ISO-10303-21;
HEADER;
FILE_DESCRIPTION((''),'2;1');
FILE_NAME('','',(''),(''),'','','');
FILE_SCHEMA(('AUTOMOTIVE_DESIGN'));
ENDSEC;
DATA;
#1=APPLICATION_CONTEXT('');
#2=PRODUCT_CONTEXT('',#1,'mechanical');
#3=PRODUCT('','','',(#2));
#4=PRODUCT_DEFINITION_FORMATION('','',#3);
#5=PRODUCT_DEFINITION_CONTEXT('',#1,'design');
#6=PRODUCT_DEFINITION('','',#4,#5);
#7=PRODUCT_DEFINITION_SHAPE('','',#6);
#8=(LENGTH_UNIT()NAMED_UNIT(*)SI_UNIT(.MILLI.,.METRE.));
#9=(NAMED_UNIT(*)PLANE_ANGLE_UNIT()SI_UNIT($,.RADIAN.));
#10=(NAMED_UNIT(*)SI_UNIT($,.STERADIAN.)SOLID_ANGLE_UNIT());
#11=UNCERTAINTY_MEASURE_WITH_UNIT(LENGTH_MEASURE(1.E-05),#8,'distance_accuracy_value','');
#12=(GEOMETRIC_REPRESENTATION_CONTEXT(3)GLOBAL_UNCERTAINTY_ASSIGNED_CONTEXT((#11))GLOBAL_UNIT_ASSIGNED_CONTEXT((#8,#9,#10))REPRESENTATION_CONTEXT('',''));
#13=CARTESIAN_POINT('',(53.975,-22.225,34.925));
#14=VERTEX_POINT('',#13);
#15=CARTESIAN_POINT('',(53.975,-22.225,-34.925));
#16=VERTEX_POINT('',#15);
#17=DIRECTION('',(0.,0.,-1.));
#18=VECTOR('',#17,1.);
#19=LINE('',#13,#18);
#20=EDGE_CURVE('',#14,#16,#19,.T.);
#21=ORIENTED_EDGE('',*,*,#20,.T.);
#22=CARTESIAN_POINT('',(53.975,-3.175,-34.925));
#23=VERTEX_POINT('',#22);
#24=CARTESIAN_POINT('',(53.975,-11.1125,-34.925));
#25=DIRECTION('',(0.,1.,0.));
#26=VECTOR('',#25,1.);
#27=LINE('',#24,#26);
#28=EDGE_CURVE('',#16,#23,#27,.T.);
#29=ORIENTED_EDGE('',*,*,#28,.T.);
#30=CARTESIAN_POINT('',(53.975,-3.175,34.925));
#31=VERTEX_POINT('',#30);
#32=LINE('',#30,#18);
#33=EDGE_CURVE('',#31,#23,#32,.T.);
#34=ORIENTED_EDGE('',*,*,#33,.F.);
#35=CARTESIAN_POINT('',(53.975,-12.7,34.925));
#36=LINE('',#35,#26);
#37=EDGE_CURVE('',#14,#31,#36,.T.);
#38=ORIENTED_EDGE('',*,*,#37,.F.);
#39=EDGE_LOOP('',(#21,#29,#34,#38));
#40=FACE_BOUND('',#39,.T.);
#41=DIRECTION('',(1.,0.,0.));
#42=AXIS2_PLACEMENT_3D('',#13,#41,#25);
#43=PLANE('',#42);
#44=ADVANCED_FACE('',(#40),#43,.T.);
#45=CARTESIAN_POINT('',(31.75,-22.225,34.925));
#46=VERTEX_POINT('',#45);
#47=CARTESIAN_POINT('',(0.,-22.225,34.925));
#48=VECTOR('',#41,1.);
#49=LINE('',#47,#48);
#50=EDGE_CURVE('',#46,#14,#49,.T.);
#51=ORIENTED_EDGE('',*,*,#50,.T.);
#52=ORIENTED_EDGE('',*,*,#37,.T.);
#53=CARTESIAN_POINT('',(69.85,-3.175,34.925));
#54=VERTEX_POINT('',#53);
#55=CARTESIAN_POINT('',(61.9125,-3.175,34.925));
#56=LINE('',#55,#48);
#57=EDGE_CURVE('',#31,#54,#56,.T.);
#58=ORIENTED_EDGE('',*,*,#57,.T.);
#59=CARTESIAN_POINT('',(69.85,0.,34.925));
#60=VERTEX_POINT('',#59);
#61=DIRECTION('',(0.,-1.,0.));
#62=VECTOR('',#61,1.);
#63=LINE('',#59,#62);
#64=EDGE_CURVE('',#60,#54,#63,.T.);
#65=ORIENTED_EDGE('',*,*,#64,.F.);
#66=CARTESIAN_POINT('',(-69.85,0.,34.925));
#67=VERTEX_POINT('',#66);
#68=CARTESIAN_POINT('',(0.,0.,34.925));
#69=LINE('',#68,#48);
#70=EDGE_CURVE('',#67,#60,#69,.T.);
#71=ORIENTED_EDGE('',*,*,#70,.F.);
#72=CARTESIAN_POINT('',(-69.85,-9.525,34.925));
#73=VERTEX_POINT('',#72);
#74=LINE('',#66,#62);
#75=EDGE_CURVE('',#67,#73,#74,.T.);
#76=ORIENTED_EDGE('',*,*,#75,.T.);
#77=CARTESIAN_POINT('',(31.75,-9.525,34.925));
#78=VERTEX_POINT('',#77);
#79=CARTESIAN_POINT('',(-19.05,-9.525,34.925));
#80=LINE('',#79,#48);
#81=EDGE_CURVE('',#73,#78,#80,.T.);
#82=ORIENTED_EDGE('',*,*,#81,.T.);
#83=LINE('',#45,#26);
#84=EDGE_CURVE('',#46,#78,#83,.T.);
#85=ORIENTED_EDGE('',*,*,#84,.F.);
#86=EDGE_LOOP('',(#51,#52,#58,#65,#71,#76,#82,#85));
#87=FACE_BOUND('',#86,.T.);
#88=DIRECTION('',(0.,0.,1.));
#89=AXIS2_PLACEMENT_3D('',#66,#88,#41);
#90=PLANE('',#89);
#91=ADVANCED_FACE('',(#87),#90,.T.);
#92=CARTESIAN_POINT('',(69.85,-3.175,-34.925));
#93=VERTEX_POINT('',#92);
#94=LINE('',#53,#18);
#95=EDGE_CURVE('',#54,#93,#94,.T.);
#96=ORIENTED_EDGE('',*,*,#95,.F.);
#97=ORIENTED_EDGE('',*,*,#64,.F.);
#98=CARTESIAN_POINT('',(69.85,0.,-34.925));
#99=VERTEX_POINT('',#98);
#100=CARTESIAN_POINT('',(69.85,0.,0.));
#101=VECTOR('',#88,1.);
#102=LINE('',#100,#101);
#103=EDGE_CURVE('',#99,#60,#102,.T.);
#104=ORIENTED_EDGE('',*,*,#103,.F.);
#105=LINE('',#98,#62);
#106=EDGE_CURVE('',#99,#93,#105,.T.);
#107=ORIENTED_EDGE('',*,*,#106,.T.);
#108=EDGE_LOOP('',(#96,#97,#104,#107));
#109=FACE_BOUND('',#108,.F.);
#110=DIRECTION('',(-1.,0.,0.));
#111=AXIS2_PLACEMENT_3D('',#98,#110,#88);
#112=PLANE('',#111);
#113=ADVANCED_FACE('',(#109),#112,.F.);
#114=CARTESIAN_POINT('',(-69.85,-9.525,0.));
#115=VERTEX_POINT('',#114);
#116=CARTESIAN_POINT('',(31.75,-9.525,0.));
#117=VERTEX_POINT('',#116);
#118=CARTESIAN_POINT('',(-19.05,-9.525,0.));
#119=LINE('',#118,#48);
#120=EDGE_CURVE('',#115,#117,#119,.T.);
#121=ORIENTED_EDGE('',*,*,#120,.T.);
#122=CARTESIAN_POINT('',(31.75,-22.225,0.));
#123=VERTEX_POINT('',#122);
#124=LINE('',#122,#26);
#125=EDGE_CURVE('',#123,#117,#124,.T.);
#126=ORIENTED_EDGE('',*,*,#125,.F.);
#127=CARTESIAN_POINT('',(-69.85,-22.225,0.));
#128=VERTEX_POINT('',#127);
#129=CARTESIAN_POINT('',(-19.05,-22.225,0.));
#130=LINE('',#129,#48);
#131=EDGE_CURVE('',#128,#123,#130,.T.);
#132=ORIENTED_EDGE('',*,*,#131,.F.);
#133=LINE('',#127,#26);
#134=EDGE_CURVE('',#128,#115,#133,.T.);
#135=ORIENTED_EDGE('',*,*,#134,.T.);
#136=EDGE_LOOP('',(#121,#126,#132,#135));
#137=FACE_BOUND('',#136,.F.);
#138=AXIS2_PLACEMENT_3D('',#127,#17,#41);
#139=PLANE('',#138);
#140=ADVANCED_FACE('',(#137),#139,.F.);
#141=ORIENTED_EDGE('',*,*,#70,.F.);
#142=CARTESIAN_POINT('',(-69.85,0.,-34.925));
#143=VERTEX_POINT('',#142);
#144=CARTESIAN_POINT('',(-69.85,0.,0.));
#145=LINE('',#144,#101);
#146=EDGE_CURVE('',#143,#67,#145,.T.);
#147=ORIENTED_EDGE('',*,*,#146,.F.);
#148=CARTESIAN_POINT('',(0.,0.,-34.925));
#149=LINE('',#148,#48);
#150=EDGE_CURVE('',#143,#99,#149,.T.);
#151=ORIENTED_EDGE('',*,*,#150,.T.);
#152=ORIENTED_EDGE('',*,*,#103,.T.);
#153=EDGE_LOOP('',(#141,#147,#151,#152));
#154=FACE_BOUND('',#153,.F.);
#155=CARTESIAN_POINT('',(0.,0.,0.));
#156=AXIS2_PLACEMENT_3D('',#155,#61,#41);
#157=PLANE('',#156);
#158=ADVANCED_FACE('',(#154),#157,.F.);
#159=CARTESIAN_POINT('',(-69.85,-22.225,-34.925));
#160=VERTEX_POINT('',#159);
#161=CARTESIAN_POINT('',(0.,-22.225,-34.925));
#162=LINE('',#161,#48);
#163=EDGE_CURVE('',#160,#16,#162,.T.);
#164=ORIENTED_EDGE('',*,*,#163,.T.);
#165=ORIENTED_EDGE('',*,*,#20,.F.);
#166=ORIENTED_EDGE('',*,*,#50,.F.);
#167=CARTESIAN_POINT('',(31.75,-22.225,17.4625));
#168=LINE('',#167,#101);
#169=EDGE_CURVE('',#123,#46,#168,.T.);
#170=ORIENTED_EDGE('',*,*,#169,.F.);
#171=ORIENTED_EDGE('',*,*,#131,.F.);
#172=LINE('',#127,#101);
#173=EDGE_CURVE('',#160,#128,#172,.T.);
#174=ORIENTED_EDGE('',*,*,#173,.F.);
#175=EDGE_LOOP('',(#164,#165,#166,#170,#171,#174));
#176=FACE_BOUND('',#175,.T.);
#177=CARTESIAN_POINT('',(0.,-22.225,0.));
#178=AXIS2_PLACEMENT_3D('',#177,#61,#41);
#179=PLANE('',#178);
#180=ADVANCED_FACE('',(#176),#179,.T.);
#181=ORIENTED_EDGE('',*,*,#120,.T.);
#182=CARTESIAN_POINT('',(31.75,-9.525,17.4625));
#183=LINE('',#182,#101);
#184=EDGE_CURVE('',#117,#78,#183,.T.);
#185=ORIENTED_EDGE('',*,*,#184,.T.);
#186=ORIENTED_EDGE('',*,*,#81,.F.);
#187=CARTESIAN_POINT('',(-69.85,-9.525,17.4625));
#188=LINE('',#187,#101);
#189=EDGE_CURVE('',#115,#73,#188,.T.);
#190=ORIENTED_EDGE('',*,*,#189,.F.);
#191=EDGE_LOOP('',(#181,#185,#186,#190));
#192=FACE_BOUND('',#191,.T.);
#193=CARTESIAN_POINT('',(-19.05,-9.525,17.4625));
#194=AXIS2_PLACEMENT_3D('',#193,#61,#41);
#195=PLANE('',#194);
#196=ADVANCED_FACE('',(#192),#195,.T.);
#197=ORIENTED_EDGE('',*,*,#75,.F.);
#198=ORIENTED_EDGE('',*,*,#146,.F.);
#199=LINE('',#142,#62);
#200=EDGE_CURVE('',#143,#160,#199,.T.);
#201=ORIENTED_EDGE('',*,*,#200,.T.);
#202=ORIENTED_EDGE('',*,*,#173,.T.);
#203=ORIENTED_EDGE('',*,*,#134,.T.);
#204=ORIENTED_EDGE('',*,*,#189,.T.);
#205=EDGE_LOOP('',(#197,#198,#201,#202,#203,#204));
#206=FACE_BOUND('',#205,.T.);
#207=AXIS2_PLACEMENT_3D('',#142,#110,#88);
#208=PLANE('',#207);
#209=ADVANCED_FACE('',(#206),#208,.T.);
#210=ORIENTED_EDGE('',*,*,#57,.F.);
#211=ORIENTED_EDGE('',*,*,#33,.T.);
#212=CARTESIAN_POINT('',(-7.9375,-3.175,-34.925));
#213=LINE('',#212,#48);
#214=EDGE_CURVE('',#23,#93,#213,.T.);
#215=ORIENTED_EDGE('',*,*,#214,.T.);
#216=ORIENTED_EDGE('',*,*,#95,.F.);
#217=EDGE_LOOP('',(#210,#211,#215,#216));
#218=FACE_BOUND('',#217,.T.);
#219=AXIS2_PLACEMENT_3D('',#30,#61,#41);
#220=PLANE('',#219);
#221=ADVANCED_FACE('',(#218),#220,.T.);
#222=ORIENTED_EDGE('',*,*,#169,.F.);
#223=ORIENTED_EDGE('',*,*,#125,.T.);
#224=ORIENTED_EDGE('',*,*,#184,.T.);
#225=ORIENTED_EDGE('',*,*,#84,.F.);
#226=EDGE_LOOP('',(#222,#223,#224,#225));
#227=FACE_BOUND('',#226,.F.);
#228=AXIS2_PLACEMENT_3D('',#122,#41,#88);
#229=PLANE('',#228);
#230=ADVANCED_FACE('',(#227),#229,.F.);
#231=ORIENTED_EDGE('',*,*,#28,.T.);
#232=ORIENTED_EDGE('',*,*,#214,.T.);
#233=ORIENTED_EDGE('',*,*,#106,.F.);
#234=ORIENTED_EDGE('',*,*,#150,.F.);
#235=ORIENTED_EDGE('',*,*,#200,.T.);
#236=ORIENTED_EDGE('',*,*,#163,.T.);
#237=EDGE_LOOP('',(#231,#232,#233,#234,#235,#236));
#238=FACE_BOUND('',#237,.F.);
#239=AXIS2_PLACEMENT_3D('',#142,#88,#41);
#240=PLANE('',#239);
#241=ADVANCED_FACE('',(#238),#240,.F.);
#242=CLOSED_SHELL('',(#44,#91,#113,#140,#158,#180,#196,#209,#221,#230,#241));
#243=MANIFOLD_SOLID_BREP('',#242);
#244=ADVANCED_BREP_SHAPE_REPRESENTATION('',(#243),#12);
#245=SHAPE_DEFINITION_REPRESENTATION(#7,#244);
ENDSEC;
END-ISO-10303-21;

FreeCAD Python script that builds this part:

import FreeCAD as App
import Part
import Sketcher
from FreeCAD import Vector
Q = App.Units.Quantity


def add_polygon(sketch, points):
    """Adds a closed chain of lines whose ends are joined by coincident constraints."""
    first, n = sketch.GeometryCount, len(points)
    for a, b in zip(points, points[1:] + points[:1]):
        sketch.addGeometry(Part.LineSegment(App.Vector(*a, 0), App.Vector(*b, 0)), False)
    for i in range(n):
        sketch.addConstraint(Sketcher.Constraint("Coincident", first + i, 2, first + (i + 1) % n, 1))

doc = App.newDocument("Part")
body = doc.addObject("PartDesign::Body", "Body")

sketch1 = body.newObject("Sketcher::SketchObject", "Sketch")
sketch1.AttachmentSupport = (doc.getObject("XZ_Plane"), [""])
sketch1.MapMode = "FlatFace"
add_polygon(sketch1, [(-69.85, 34.925), (-69.85, -34.925), (69.85, -34.925), (69.85, 34.925)])
sketch1.addConstraint([
    Sketcher.Constraint("Vertical", 0),
    Sketcher.Constraint("Horizontal", 1),
    Sketcher.Constraint("Vertical", 2),
    Sketcher.Constraint("Horizontal", 3),
    Sketcher.Constraint("Symmetric", 0, 2, 2, 2, -1, 1),
    Sketcher.Constraint("DistanceX", 1, 1, 1, 2, Q("5.5 in")),
    Sketcher.Constraint("DistanceY", 0, 2, 0, 1, Q("2.75 in")),
])
pad1 = body.newObject("PartDesign::Pad", "Pad")
pad1.Profile = sketch1
pad1.Length = Q("0.875 in")

sketch2 = body.newObject("Sketcher::SketchObject", "Sketch001")
sketch2.AttachmentSupport = (doc.getObject("XZ_Plane"), [""])
sketch2.MapMode = "FlatFace"
sketch2.AttachmentOffset = App.Placement(Vector(0, 0, 0.875 * 25.4), App.Rotation())
add_polygon(sketch2, [(-69.85, 34.925), (-69.85, 0), (31.75, 0), (31.75, 34.925)])
sketch2.addConstraint([
    Sketcher.Constraint("Vertical", 0),
    Sketcher.Constraint("Horizontal", 1),
    Sketcher.Constraint("Vertical", 2),
    Sketcher.Constraint("Horizontal", 3),
    Sketcher.Constraint("PointOnObject", 0, 2, -1),
    Sketcher.Constraint("DistanceX", 1, 1, 1, 2, Q("4 in")),
    Sketcher.Constraint("DistanceY", 0, 2, 0, 1, Q("1.375 in")),
    Sketcher.Constraint("DistanceX", 0, 2, -1, 1, Q("2.75 in")),
])
pocket1 = body.newObject("PartDesign::Pocket", "Pocket")
pocket1.Profile = sketch2
pocket1.Length = Q("0.5 in")

sketch3 = body.newObject("Sketcher::SketchObject", "Sketch002")
sketch3.AttachmentSupport = (doc.getObject("XY_Plane"), [""])
sketch3.MapMode = "FlatFace"
sketch3.AttachmentOffset = App.Placement(Vector(0, 0, 1.375 * 25.4), App.Rotation())
add_polygon(sketch3, [(53.975, -3.175), (53.975, -22.225), (69.85, -22.225), (69.85, -3.175)])
sketch3.addConstraint([
    Sketcher.Constraint("Vertical", 0),
    Sketcher.Constraint("Horizontal", 1),
    Sketcher.Constraint("Vertical", 2),
    Sketcher.Constraint("Horizontal", 3),
    Sketcher.Constraint("DistanceY", 0, 2, 0, 1, Q("0.75 in")),
    Sketcher.Constraint("DistanceX", 1, 1, 1, 2, Q("0.625 in")),
    Sketcher.Constraint("DistanceX", -1, 1, 1, 2, Q("2.75 in")),
    Sketcher.Constraint("DistanceY", 0, 2, -1, 1, Q("0.875 in")),
])
pocket2 = body.newObject("PartDesign::Pocket", "Pocket001")
pocket2.Profile = sketch3
pocket2.Length = Q("5 in")

doc.recompute()
